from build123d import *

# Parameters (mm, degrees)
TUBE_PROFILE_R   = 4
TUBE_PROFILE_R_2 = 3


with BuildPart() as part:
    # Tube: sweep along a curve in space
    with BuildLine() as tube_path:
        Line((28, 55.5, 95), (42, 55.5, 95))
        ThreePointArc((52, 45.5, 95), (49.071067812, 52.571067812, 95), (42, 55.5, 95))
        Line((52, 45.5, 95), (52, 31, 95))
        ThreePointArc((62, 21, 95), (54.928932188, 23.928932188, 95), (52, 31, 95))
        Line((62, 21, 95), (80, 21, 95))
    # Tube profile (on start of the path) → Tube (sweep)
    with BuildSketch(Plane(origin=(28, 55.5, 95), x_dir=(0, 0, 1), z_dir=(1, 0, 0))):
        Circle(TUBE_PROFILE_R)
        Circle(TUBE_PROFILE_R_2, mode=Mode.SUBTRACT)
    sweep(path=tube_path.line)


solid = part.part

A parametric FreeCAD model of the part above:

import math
import FreeCAD as App
import Part
import Sketcher

V = App.Vector

doc = App.newDocument("Part")
body = doc.addObject("PartDesign::Body", "Body")

# Sketch on YZ plane
sketch1 = body.newObject("Sketcher::SketchObject", "Sketch")
sketch1.AttachmentSupport = (doc.getObject("YZ_Plane"), [""])
sketch1.MapMode = "FlatFace"
sketch1.AttachmentOffset = App.Placement(V(0, 0, 28), App.Rotation())
sketch1.addGeometry([
    Part.Circle(V(55.5, 95, 0), V(0, 0, 1), 4),
    Part.Circle(V(55.5, 95, 0), V(0, 0, 1), 3),
], False)
sketch1.addConstraint([
    Sketcher.Constraint("Coincident", 1, 3, 0, 3),
    Sketcher.Constraint("Diameter", 0, 8.0),
    Sketcher.Constraint("Diameter", 1, 6.0),
    Sketcher.Constraint("DistanceY", -1, 1, 0, 3, 95.0),
    Sketcher.Constraint("DistanceX", -1, 1, 0, 3, 55.5),
])

# Sketch on XY plane
sketch2 = body.newObject("Sketcher::SketchObject", "Sketch001")
sketch2.AttachmentSupport = (doc.getObject("XY_Plane"), [""])
sketch2.MapMode = "FlatFace"
sketch2.AttachmentOffset = App.Placement(V(0, 0, 95), App.Rotation())
sketch2.addGeometry([
    Part.LineSegment(V(28, 56, 0), V(42, 56, 0)),  # 0
    Part.ArcOfCircle(Part.Circle(V(42, 46, 0), V(0, 0, 1), 10), math.radians(0), math.radians(90)),  # 1
    Part.LineSegment(V(52, 46, 0), V(52, 31, 0)),  # 2
    Part.ArcOfCircle(Part.Circle(V(62, 31, 0), V(0, 0, 1), 10), math.radians(180), math.radians(270)),  # 3
    Part.LineSegment(V(62, 21, 0), V(80, 21, 0)),  # 4
], False)
sketch2.addConstraint([
    Sketcher.Constraint("Tangent", 0, 2, 1, 2),
    Sketcher.Constraint("Tangent", 1, 1, 2, 1),
    Sketcher.Constraint("Tangent", 2, 2, 3, 1),
    Sketcher.Constraint("Tangent", 3, 2, 4, 1),
    Sketcher.Constraint("Horizontal", 0),
    Sketcher.Constraint("Vertical", 2),
    Sketcher.Constraint("Horizontal", 4),
    Sketcher.Constraint("Equal", 1, 3),
    Sketcher.Constraint("Radius", 1, 10.0),
    Sketcher.Constraint("DistanceX", 0, 1, 0, 2, 14.0),
    Sketcher.Constraint("DistanceX", 4, 1, 4, 2, 18.0),
    Sketcher.Constraint("DistanceY", 2, 2, 2, 1, 14.5),
    Sketcher.Constraint("DistanceX", -1, 1, 1, 3, 42.0),
    Sketcher.Constraint("DistanceY", -1, 1, 3, 3, 31.0),
])
doc.recompute()

additivepipe = body.newObject("PartDesign::AdditivePipe", "AdditivePipe")
additivepipe.Profile = sketch1
additivepipe.Spine = (sketch2, ["Edge1", "Edge2", "Edge3", "Edge4", "Edge5"])

doc.recompute()
